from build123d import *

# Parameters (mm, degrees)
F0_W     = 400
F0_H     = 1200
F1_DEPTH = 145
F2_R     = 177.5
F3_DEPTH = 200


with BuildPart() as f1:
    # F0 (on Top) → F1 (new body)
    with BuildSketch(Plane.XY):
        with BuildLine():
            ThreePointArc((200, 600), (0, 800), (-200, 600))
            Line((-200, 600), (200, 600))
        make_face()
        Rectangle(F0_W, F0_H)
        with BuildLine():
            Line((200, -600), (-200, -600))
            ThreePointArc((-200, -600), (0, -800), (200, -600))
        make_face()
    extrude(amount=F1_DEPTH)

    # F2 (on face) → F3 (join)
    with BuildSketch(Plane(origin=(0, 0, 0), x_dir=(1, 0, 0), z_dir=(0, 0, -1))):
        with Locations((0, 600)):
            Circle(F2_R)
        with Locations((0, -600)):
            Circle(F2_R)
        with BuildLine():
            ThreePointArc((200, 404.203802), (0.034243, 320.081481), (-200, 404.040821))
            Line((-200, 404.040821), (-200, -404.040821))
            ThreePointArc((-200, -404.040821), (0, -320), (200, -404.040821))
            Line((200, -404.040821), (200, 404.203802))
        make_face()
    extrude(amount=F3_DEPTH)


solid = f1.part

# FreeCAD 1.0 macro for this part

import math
import FreeCAD as App
import Part
import Sketcher

doc = App.newDocument("Part")
body = doc.addObject("PartDesign::Body", "Body")

sketch1 = body.newObject("Sketcher::SketchObject", "Sketch")
sketch1.AttachmentSupport = (doc.getObject("XY_Plane"), [""])
sketch1.MapMode = "FlatFace"
sketch1.addGeometry(Part.ArcOfCircle(Part.Circle(App.Vector(0, 600, 0), App.Vector(0, 0, 1), 200), math.radians(0), math.radians(180)), False)
sketch1.addGeometry(Part.LineSegment(App.Vector(-200, 600, 0), App.Vector(-200, -600, 0)), False)
sketch1.addGeometry(Part.ArcOfCircle(Part.Circle(App.Vector(0, -600, 0), App.Vector(0, 0, 1), 200), math.radians(180), math.radians(360)), False)
sketch1.addGeometry(Part.LineSegment(App.Vector(200, -600, 0), App.Vector(200, 600, 0)), False)
sketch1.addConstraint(Sketcher.Constraint("Tangent", 0, 2, 1, 1))
sketch1.addConstraint(Sketcher.Constraint("Tangent", 1, 2, 2, 1))
sketch1.addConstraint(Sketcher.Constraint("Tangent", 2, 2, 3, 1))
sketch1.addConstraint(Sketcher.Constraint("Tangent", 3, 2, 0, 1))
sketch1.addConstraint(Sketcher.Constraint("Vertical", 1))
sketch1.addConstraint(Sketcher.Constraint("Vertical", 3))
sketch1.addConstraint(Sketcher.Constraint("Symmetric", 0, 3, 2, 3, -1, 1))
sketch1.addConstraint(Sketcher.Constraint("Radius", 0, 200.0))
sketch1.addConstraint(Sketcher.Constraint("DistanceY", 1, 2, 1, 1, 1200.0))
pad1 = body.newObject("PartDesign::Pad", "Pad")
pad1.Profile = sketch1
pad1.Length = 145

sketch2 = body.newObject("Sketcher::SketchObject", "Sketch001")
sketch2.AttachmentSupport = (doc.getObject("XY_Plane"), [""])
sketch2.MapMode = "FlatFace"
sketch2.addGeometry(Part.Circle(App.Vector(0, -600, 0), App.Vector(0, 0, 1), 178), False)
sketch2.addGeometry(Part.Circle(App.Vector(0, 600, 0), App.Vector(0, 0, 1), 178), False)
sketch2.addGeometry(Part.ArcOfCircle(Part.Circle(App.Vector(0, -600, 0), App.Vector(0, 0, 1), 280), math.radians(44), math.radians(136)), False)
sketch2.addGeometry(Part.LineSegment(App.Vector(-200, -404, 0), App.Vector(-200, 404, 0)), False)
sketch2.addGeometry(Part.ArcOfCircle(Part.Circle(App.Vector(0, 600, 0), App.Vector(0, 0, 1), 280), math.radians(-136), math.radians(-44)), False)
sketch2.addGeometry(Part.LineSegment(App.Vector(200, 404, 0), App.Vector(200, -404, 0)), False)
sketch2.addConstraint(Sketcher.Constraint("Coincident", 2, 2, 3, 1))
sketch2.addConstraint(Sketcher.Constraint("Coincident", 3, 2, 4, 1))
sketch2.addConstraint(Sketcher.Constraint("Coincident", 4, 2, 5, 1))
sketch2.addConstraint(Sketcher.Constraint("Coincident", 5, 2, 2, 1))
sketch2.addConstraint(Sketcher.Constraint("Vertical", 3))
sketch2.addConstraint(Sketcher.Constraint("Vertical", 5))
sketch2.addConstraint(Sketcher.Constraint("Coincident", 4, 3, 1, 3))
sketch2.addConstraint(Sketcher.Constraint("Equal", 0, 1))
sketch2.addConstraint(Sketcher.Constraint("Equal", 2, 4))
sketch2.addConstraint(Sketcher.Constraint("Symmetric", 0, 3, 1, 3, -1, 1))
sketch2.addConstraint(Sketcher.Constraint("Symmetric", 2, 2, 4, 2, -1, 1))
sketch2.addConstraint(Sketcher.Constraint("PointOnObject", 0, 3, -2))
sketch2.addConstraint(Sketcher.Constraint("Diameter", 0, 355.0))
sketch2.addConstraint(Sketcher.Constraint("Radius", 2, 280.0))
sketch2.addConstraint(Sketcher.Constraint("DistanceY", 0, 3, -1, 1, 600.0))
sketch2.addConstraint(Sketcher.Constraint("DistanceX", 3, 2, -1, 1, 200.0))
sketch2.addConstraint(Sketcher.Constraint("DistanceY", 5, 2, -1, 1, 404.203802))
pad2 = body.newObject("PartDesign::Pad", "Pad001")
pad2.Profile = sketch2
pad2.Length = 200
pad2.Reversed = True

doc.recompute()
